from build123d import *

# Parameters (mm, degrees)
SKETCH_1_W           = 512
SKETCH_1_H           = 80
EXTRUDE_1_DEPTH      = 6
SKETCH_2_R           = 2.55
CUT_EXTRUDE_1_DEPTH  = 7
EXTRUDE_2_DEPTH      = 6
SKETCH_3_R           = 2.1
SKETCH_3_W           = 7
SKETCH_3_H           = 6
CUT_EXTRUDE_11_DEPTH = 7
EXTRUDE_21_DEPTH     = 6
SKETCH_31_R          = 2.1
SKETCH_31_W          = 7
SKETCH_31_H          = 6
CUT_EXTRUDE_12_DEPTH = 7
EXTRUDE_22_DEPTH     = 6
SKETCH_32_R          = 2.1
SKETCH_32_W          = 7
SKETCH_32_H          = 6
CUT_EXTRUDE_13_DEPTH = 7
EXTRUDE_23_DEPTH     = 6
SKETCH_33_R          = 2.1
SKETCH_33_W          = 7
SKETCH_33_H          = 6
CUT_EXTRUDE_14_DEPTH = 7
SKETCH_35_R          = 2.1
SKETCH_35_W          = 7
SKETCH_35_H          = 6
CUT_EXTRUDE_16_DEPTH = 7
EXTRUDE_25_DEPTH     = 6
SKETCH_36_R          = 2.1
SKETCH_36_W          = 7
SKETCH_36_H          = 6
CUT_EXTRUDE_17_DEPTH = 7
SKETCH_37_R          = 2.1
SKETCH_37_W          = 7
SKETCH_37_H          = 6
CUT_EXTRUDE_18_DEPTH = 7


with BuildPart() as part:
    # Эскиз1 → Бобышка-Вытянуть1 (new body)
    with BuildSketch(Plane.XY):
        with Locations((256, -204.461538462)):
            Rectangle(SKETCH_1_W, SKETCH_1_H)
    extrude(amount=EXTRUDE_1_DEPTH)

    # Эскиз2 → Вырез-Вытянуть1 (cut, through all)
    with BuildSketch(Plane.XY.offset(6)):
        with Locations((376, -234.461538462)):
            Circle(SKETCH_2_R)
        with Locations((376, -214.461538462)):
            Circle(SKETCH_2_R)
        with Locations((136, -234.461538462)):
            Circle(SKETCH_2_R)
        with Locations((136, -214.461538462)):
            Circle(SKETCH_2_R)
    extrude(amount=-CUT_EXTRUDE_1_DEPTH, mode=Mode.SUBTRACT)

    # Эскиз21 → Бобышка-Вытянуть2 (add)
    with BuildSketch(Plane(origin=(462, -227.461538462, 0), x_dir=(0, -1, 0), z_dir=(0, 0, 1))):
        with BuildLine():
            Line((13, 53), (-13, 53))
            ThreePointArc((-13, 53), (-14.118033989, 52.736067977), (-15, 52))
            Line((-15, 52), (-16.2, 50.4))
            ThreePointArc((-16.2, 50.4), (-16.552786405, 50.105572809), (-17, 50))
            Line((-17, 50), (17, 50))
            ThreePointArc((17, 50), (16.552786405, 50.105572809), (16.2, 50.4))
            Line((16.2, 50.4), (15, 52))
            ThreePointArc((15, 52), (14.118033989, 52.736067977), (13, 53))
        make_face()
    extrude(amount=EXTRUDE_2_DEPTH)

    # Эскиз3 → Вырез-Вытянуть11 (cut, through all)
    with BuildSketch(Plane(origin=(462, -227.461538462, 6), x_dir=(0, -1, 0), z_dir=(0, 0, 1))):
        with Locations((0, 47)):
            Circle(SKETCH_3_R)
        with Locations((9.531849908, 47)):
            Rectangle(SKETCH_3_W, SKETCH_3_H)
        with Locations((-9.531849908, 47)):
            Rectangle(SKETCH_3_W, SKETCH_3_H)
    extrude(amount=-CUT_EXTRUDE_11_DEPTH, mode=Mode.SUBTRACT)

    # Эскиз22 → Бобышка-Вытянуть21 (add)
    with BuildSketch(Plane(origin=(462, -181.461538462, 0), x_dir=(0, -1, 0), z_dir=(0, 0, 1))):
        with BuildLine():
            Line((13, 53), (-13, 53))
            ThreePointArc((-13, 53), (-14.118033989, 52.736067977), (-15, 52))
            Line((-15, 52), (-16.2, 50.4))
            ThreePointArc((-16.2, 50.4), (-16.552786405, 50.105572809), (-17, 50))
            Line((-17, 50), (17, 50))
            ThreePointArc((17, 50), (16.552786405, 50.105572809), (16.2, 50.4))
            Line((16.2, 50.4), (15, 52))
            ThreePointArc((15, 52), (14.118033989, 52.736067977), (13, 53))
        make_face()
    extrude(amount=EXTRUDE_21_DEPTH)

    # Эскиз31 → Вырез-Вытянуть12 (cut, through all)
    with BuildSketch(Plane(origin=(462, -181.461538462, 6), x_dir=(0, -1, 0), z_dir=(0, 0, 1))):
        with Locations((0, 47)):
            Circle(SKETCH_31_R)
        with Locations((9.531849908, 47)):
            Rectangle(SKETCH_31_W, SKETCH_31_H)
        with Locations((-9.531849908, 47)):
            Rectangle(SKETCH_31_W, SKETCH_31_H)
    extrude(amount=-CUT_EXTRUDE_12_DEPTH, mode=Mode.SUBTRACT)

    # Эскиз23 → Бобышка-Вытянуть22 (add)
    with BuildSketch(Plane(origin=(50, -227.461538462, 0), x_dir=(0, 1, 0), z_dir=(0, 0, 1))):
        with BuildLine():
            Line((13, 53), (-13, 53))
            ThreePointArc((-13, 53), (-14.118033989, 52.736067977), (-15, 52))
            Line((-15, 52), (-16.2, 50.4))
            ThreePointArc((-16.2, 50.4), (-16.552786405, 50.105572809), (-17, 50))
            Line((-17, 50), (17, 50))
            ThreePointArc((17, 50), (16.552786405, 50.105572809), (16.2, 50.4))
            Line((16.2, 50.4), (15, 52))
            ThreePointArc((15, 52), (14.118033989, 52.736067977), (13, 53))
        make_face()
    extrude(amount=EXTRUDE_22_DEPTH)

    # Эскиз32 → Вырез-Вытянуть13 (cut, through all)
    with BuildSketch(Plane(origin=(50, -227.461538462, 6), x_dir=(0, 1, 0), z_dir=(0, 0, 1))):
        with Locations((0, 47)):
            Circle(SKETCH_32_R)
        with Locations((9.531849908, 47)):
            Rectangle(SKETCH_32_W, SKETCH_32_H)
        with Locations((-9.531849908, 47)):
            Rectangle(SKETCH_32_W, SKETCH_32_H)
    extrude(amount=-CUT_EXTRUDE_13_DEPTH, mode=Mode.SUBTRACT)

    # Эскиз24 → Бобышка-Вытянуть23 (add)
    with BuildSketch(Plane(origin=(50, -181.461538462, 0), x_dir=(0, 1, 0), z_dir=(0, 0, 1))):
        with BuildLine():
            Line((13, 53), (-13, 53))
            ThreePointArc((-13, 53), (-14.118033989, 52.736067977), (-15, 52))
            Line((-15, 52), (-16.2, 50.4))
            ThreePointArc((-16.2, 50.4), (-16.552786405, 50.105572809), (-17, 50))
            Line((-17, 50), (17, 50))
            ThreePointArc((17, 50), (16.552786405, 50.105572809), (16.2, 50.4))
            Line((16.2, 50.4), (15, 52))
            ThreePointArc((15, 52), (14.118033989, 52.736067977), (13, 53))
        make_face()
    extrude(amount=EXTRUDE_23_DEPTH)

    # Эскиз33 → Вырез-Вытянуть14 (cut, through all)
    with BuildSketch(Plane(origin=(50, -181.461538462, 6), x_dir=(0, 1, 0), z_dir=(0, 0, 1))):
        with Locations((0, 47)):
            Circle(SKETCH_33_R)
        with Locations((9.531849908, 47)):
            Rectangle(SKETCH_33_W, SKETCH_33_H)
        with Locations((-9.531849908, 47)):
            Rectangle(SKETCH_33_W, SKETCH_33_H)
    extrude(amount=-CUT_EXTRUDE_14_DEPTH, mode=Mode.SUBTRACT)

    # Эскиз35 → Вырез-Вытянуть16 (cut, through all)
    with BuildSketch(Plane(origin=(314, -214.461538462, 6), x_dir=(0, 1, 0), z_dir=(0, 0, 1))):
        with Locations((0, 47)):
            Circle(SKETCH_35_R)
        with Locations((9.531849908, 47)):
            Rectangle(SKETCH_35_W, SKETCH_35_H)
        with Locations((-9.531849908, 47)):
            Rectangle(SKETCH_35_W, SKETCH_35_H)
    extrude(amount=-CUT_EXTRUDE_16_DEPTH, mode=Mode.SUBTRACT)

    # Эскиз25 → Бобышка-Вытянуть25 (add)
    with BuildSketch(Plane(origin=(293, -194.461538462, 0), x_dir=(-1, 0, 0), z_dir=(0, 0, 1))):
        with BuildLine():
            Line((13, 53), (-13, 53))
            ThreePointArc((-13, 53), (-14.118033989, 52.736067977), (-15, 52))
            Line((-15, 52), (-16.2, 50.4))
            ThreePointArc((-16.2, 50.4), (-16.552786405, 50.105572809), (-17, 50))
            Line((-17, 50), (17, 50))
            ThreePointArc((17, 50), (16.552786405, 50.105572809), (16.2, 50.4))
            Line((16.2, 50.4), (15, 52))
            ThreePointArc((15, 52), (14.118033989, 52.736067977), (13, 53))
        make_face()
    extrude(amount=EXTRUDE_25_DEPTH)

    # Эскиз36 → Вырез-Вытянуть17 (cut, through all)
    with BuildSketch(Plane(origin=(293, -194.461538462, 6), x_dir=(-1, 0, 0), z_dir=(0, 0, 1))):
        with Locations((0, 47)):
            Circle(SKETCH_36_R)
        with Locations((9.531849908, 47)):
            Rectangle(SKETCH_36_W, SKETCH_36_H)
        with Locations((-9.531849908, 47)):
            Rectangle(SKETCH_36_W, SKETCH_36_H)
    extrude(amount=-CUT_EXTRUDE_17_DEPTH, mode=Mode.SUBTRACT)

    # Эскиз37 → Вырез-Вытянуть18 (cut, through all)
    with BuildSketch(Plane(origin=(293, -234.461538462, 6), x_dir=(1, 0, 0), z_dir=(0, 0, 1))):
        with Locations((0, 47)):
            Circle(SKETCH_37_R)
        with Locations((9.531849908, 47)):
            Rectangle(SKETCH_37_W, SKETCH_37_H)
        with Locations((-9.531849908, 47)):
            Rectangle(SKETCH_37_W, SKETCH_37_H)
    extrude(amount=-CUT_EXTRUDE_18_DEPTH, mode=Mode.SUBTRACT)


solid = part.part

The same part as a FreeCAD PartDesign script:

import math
import FreeCAD as App
import Part
import Sketcher

V = App.Vector


def add_polygon(sketch, points):
    """Adds a closed chain of lines whose ends are joined by coincident constraints."""
    first, n = sketch.GeometryCount, len(points)
    for a, b in zip(points, points[1:] + points[:1]):
        sketch.addGeometry(Part.LineSegment(App.Vector(*a, 0), App.Vector(*b, 0)), False)
    for i in range(n):
        sketch.addConstraint(Sketcher.Constraint("Coincident", first + i, 2, first + (i + 1) % n, 1))

doc = App.newDocument("Part")
body = doc.addObject("PartDesign::Body", "Body")

# Sketch on XY plane
sketch1 = body.newObject("Sketcher::SketchObject", "Sketch")
sketch1.AttachmentSupport = (doc.getObject("XY_Plane"), [""])
sketch1.MapMode = "FlatFace"
add_polygon(sketch1, [(0, -164), (0, -244), (512, -244), (512, -164)])  # lines 0-3
sketch1.addConstraint(Sketcher.Constraint("Vertical", 0))
sketch1.addConstraint(Sketcher.Constraint("Horizontal", 1))
sketch1.addConstraint(Sketcher.Constraint("Vertical", 2))
sketch1.addConstraint(Sketcher.Constraint("Horizontal", 3))
sketch1.addConstraint(Sketcher.Constraint("PointOnObject", 0, 2, -2))
sketch1.addConstraint(Sketcher.Constraint("DistanceX", 1, 1, 1, 2, 512.0))
sketch1.addConstraint(Sketcher.Constraint("DistanceY", 0, 2, 0, 1, 80.0))
sketch1.addConstraint(Sketcher.Constraint("DistanceY", 0, 2, -1, 1, 244.461538))
pad1 = body.newObject("PartDesign::Pad", "Pad")
pad1.Profile = sketch1
pad1.Length = 6

# Sketch on XY plane
sketch2 = body.newObject("Sketcher::SketchObject", "Sketch001")
sketch2.AttachmentSupport = (doc.getObject("XY_Plane"), [""])
sketch2.MapMode = "FlatFace"
sketch2.AttachmentOffset = App.Placement(V(0, 0, 6), App.Rotation())
sketch2.addGeometry(Part.Circle(V(376, -234.5, 0), V(0, 0, 1), 2.5), False)
sketch2.addGeometry(Part.Circle(V(376, -214.5, 0), V(0, 0, 1), 2.5), False)
sketch2.addGeometry(Part.Circle(V(136, -234.5, 0), V(0, 0, 1), 2.5), False)
sketch2.addGeometry(Part.Circle(V(136, -214.5, 0), V(0, 0, 1), 2.5), False)
sketch2.addConstraint(Sketcher.Constraint("Equal", 0, 1))
sketch2.addConstraint(Sketcher.Constraint("Equal", 1, 2))
sketch2.addConstraint(Sketcher.Constraint("Equal", 2, 3))
sketch2.addConstraint(Sketcher.Constraint("Horizontal", 0, 3, 2, 3))
sketch2.addConstraint(Sketcher.Constraint("Horizontal", 1, 3, 3, 3))
sketch2.addConstraint(Sketcher.Constraint("Vertical", 0, 3, 1, 3))
sketch2.addConstraint(Sketcher.Constraint("Vertical", 2, 3, 3, 3))
sketch2.addConstraint(Sketcher.Constraint("Diameter", 0, 5.1))
sketch2.addConstraint(Sketcher.Constraint("DistanceX", -1, 1, 0, 3, 376.0))
sketch2.addConstraint(Sketcher.Constraint("DistanceX", -1, 1, 2, 3, 136.0))
sketch2.addConstraint(Sketcher.Constraint("DistanceY", 0, 3, 1, 3, 20.0))
sketch2.addConstraint(Sketcher.Constraint("DistanceY", 0, 3, -1, 1, 234.461538))
pocket1 = body.newObject("PartDesign::Pocket", "Pocket")
pocket1.Profile = sketch2
pocket1.Type = "ThroughAll"

# Sketch on XY plane
sketch3 = body.newObject("Sketcher::SketchObject", "Sketch002")
sketch3.AttachmentSupport = (doc.getObject("XY_Plane"), [""])
sketch3.MapMode = "FlatFace"
sketch3.addGeometry(Part.LineSegment(V(515, -240.5, 0), V(515, -214.5, 0)), False)
sketch3.addGeometry(Part.ArcOfCircle(Part.Circle(V(512.5, -214.5, 0), V(0, 0, 1), 2.5), math.radians(0), math.radians(53)), False)
sketch3.addGeometry(Part.LineSegment(V(514, -212.5, 0), V(512.4, -211.3, 0)), False)
sketch3.addGeometry(Part.ArcOfCircle(Part.Circle(V(513, -210.5, 0), V(0, 0, 1), 1), math.radians(-180), math.radians(-127)), False)
sketch3.addGeometry(Part.LineSegment(V(512, -210.5, 0), V(512, -244.5, 0)), False)
sketch3.addGeometry(Part.ArcOfCircle(Part.Circle(V(513, -244.5, 0), V(0, 0, 1), 1), math.radians(127), math.radians(180)), False)
sketch3.addGeometry(Part.LineSegment(V(512.4, -243.7, 0), V(514, -242.5, 0)), False)
sketch3.addGeometry(Part.ArcOfCircle(Part.Circle(V(512.5, -240.5, 0), V(0, 0, 1), 2.5), math.radians(-53), math.radians(0)), False)
sketch3.addConstraint(Sketcher.Constraint("Tangent", 0, 2, 1, 1))
sketch3.addConstraint(Sketcher.Constraint("Tangent", 1, 2, 2, 1))
sketch3.addConstraint(Sketcher.Constraint("Tangent", 2, 2, 3, 2))
sketch3.addConstraint(Sketcher.Constraint("Tangent", 3, 1, 4, 1))
sketch3.addConstraint(Sketcher.Constraint("Tangent", 4, 2, 5, 2))
sketch3.addConstraint(Sketcher.Constraint("Tangent", 5, 1, 6, 1))
sketch3.addConstraint(Sketcher.Constraint("Tangent", 6, 2, 7, 1))
sketch3.addConstraint(Sketcher.Constraint("Tangent", 7, 2, 0, 1))
sketch3.addConstraint(Sketcher.Constraint("Vertical", 0))
sketch3.addConstraint(Sketcher.Constraint("Vertical", 4))
sketch3.addConstraint(Sketcher.Constraint("Equal", 3, 5))
sketch3.addConstraint(Sketcher.Constraint("Equal", 1, 7))
sketch3.addConstraint(Sketcher.Constraint("Vertical", 2, 2, 5, 1))
sketch3.addConstraint(Sketcher.Constraint("Radius", 3, 1.0))
sketch3.addConstraint(Sketcher.Constraint("Radius", 1, 2.5))
sketch3.addConstraint(Sketcher.Constraint("DistanceY", 0, 1, 0, 2, 26.0))
sketch3.addConstraint(Sketcher.Constraint("DistanceY", 4, 2, 4, 1, 34.0))
sketch3.addConstraint(Sketcher.Constraint("Distance", 2, 2.0))
sketch3.addConstraint(Sketcher.Constraint("DistanceX", -1, 1, 3, 3, 513.0))
sketch3.addConstraint(Sketcher.Constraint("DistanceY", 1, 3, -1, 1, 214.461538))
pad2 = body.newObject("PartDesign::Pad", "Pad001")
pad2.Profile = sketch3
pad2.Length = 6

# Sketch on XY plane
sketch4 = body.newObject("Sketcher::SketchObject", "Sketch003")
sketch4.AttachmentSupport = (doc.getObject("XY_Plane"), [""])
sketch4.MapMode = "FlatFace"
sketch4.AttachmentOffset = App.Placement(V(0, 0, 6), App.Rotation())
sketch4.addGeometry(Part.Circle(V(509, -227.5, 0), V(0, 0, 1), 2.1), False)  # 0
add_polygon(sketch4, [(512, -233.5), (506, -233.5), (506, -240.5), (512, -240.5)])  # lines 1-4
add_polygon(sketch4, [(512, -214.4), (506, -214.4), (506, -221.4), (512, -221.4)])  # lines 5-8
sketch4.addConstraint(Sketcher.Constraint("Horizontal", 1))
sketch4.addConstraint(Sketcher.Constraint("Vertical", 2))
sketch4.addConstraint(Sketcher.Constraint("Horizontal", 3))
sketch4.addConstraint(Sketcher.Constraint("Vertical", 4))
sketch4.addConstraint(Sketcher.Constraint("Horizontal", 5))
sketch4.addConstraint(Sketcher.Constraint("Vertical", 6))
sketch4.addConstraint(Sketcher.Constraint("Horizontal", 7))
sketch4.addConstraint(Sketcher.Constraint("Vertical", 8))
sketch4.addConstraint(Sketcher.Constraint("Vertical", 2, 2, 5, 2))
sketch4.addConstraint(Sketcher.Constraint("Vertical", 4, 2, 7, 2))
sketch4.addConstraint(Sketcher.Constraint("Equal", 4, 6))
sketch4.addConstraint(Sketcher.Constraint("Diameter", 0, 4.2))
sketch4.addConstraint(Sketcher.Constraint("DistanceX", 1, 2, 1, 1, 6.0))
sketch4.addConstraint(Sketcher.Constraint("DistanceY", 2, 2, 2, 1, 7.0))
sketch4.addConstraint(Sketcher.Constraint("DistanceX", -1, 1, 0, 3, 509.0))
sketch4.addConstraint(Sketcher.Constraint("DistanceX", -1, 1, 1, 2, 506.0))
sketch4.addConstraint(Sketcher.Constraint("DistanceY", 1, 2, 5, 2, 19.0637))
sketch4.addConstraint(Sketcher.Constraint("DistanceY", 0, 3, -1, 1, 227.461538))
sketch4.addConstraint(Sketcher.Constraint("DistanceY", 1, 2, -1, 1, 233.493388))
pocket2 = body.newObject("PartDesign::Pocket", "Pocket001")
pocket2.Profile = sketch4
pocket2.Type = "ThroughAll"

# Sketch on XY plane
sketch5 = body.newObject("Sketcher::SketchObject", "Sketch004")
sketch5.AttachmentSupport = (doc.getObject("XY_Plane"), [""])
sketch5.MapMode = "FlatFace"
sketch5.addGeometry(Part.LineSegment(V(515, -194.5, 0), V(515, -168.5, 0)), False)
sketch5.addGeometry(Part.ArcOfCircle(Part.Circle(V(512.5, -168.5, 0), V(0, 0, 1), 2.5), math.radians(0), math.radians(53)), False)
sketch5.addGeometry(Part.LineSegment(V(514, -166.5, 0), V(512.4, -165.3, 0)), False)
sketch5.addGeometry(Part.ArcOfCircle(Part.Circle(V(513, -164.5, 0), V(0, 0, 1), 1), math.radians(-180), math.radians(-127)), False)
sketch5.addGeometry(Part.LineSegment(V(512, -164.5, 0), V(512, -198.5, 0)), False)
sketch5.addGeometry(Part.ArcOfCircle(Part.Circle(V(513, -198.5, 0), V(0, 0, 1), 1), math.radians(127), math.radians(180)), False)
sketch5.addGeometry(Part.LineSegment(V(512.4, -197.7, 0), V(514, -196.5, 0)), False)
sketch5.addGeometry(Part.ArcOfCircle(Part.Circle(V(512.5, -194.5, 0), V(0, 0, 1), 2.5), math.radians(-53), math.radians(0)), False)
sketch5.addConstraint(Sketcher.Constraint("Tangent", 0, 2, 1, 1))
sketch5.addConstraint(Sketcher.Constraint("Tangent", 1, 2, 2, 1))
sketch5.addConstraint(Sketcher.Constraint("Tangent", 2, 2, 3, 2))
sketch5.addConstraint(Sketcher.Constraint("Tangent", 3, 1, 4, 1))
sketch5.addConstraint(Sketcher.Constraint("Tangent", 4, 2, 5, 2))
sketch5.addConstraint(Sketcher.Constraint("Tangent", 5, 1, 6, 1))
sketch5.addConstraint(Sketcher.Constraint("Tangent", 6, 2, 7, 1))
sketch5.addConstraint(Sketcher.Constraint("Tangent", 7, 2, 0, 1))
sketch5.addConstraint(Sketcher.Constraint("Vertical", 0))
sketch5.addConstraint(Sketcher.Constraint("Vertical", 4))
sketch5.addConstraint(Sketcher.Constraint("Equal", 3, 5))
sketch5.addConstraint(Sketcher.Constraint("Equal", 1, 7))
sketch5.addConstraint(Sketcher.Constraint("Vertical", 2, 2, 5, 1))
sketch5.addConstraint(Sketcher.Constraint("Radius", 3, 1.0))
sketch5.addConstraint(Sketcher.Constraint("Radius", 1, 2.5))
sketch5.addConstraint(Sketcher.Constraint("DistanceY", 0, 1, 0, 2, 26.0))
sketch5.addConstraint(Sketcher.Constraint("DistanceY", 4, 2, 4, 1, 34.0))
sketch5.addConstraint(Sketcher.Constraint("Distance", 2, 2.0))
sketch5.addConstraint(Sketcher.Constraint("DistanceX", -1, 1, 3, 3, 513.0))
sketch5.addConstraint(Sketcher.Constraint("DistanceY", 1, 3, -1, 1, 168.461538))
pad3 = body.newObject("PartDesign::Pad", "Pad002")
pad3.Profile = sketch5
pad3.Length = 6

# Sketch on XY plane
sketch6 = body.newObject("Sketcher::SketchObject", "Sketch005")
sketch6.AttachmentSupport = (doc.getObject("XY_Plane"), [""])
sketch6.MapMode = "FlatFace"
sketch6.AttachmentOffset = App.Placement(V(0, 0, 6), App.Rotation())
sketch6.addGeometry(Part.Circle(V(509, -181.5, 0), V(0, 0, 1), 2.1), False)  # 0
add_polygon(sketch6, [(512, -187.5), (506, -187.5), (506, -194.5), (512, -194.5)])  # lines 1-4
add_polygon(sketch6, [(512, -168.4), (506, -168.4), (506, -175.4), (512, -175.4)])  # lines 5-8
sketch6.addConstraint(Sketcher.Constraint("Horizontal", 1))
sketch6.addConstraint(Sketcher.Constraint("Vertical", 2))
sketch6.addConstraint(Sketcher.Constraint("Horizontal", 3))
sketch6.addConstraint(Sketcher.Constraint("Vertical", 4))
sketch6.addConstraint(Sketcher.Constraint("Horizontal", 5))
sketch6.addConstraint(Sketcher.Constraint("Vertical", 6))
sketch6.addConstraint(Sketcher.Constraint("Horizontal", 7))
sketch6.addConstraint(Sketcher.Constraint("Vertical", 8))
sketch6.addConstraint(Sketcher.Constraint("Vertical", 2, 2, 5, 2))
sketch6.addConstraint(Sketcher.Constraint("Vertical", 4, 2, 7, 2))
sketch6.addConstraint(Sketcher.Constraint("Equal", 4, 6))
sketch6.addConstraint(Sketcher.Constraint("Diameter", 0, 4.2))
sketch6.addConstraint(Sketcher.Constraint("DistanceX", 1, 2, 1, 1, 6.0))
sketch6.addConstraint(Sketcher.Constraint("DistanceY", 2, 2, 2, 1, 7.0))
sketch6.addConstraint(Sketcher.Constraint("DistanceX", -1, 1, 0, 3, 509.0))
sketch6.addConstraint(Sketcher.Constraint("DistanceX", -1, 1, 1, 2, 506.0))
sketch6.addConstraint(Sketcher.Constraint("DistanceY", 1, 2, 5, 2, 19.0637))
sketch6.addConstraint(Sketcher.Constraint("DistanceY", 0, 3, -1, 1, 181.461538))
sketch6.addConstraint(Sketcher.Constraint("DistanceY", 1, 2, -1, 1, 187.493388))
pocket3 = body.newObject("PartDesign::Pocket", "Pocket002")
pocket3.Profile = sketch6
pocket3.Type = "ThroughAll"

# Sketch on XY plane
sketch7 = body.newObject("Sketcher::SketchObject", "Sketch006")
sketch7.AttachmentSupport = (doc.getObject("XY_Plane"), [""])
sketch7.MapMode = "FlatFace"
sketch7.addGeometry(Part.LineSegment(V(-3, -214.5, 0), V(-3, -240.5, 0)), False)
sketch7.addGeometry(Part.ArcOfCircle(Part.Circle(V(-0.5, -240.5, 0), V(0, 0, 1), 2.5), math.radians(-180), math.radians(-127)), False)
sketch7.addGeometry(Part.LineSegment(V(-2, -242.5, 0), V(-0.4, -243.7, 0)), False)
sketch7.addGeometry(Part.ArcOfCircle(Part.Circle(V(-1, -244.5, 0), V(0, 0, 1), 1), math.radians(0), math.radians(53)), False)
sketch7.addGeometry(Part.LineSegment(V(0, -244.5, 0), V(0, -210.5, 0)), False)
sketch7.addGeometry(Part.ArcOfCircle(Part.Circle(V(-1, -210.5, 0), V(0, 0, 1), 1), math.radians(-53), math.radians(0)), False)
sketch7.addGeometry(Part.LineSegment(V(-0.4, -211.3, 0), V(-2, -212.5, 0)), False)
sketch7.addGeometry(Part.ArcOfCircle(Part.Circle(V(-0.5, -214.5, 0), V(0, 0, 1), 2.5), math.radians(127), math.radians(180)), False)
sketch7.addConstraint(Sketcher.Constraint("Tangent", 0, 2, 1, 1))
sketch7.addConstraint(Sketcher.Constraint("Tangent", 1, 2, 2, 1))
sketch7.addConstraint(Sketcher.Constraint("Tangent", 2, 2, 3, 2))
sketch7.addConstraint(Sketcher.Constraint("Tangent", 3, 1, 4, 1))
sketch7.addConstraint(Sketcher.Constraint("Tangent", 4, 2, 5, 2))
sketch7.addConstraint(Sketcher.Constraint("Tangent", 5, 1, 6, 1))
sketch7.addConstraint(Sketcher.Constraint("Tangent", 6, 2, 7, 1))
sketch7.addConstraint(Sketcher.Constraint("Tangent", 7, 2, 0, 1))
sketch7.addConstraint(Sketcher.Constraint("Vertical", 0))
sketch7.addConstraint(Sketcher.Constraint("Vertical", 4))
sketch7.addConstraint(Sketcher.Constraint("Equal", 3, 5))
sketch7.addConstraint(Sketcher.Constraint("Equal", 1, 7))
sketch7.addConstraint(Sketcher.Constraint("PointOnObject", 3, 1, -2))
sketch7.addConstraint(Sketcher.Constraint("Vertical", 2, 2, 5, 1))
sketch7.addConstraint(Sketcher.Constraint("Radius", 3, 1.0))
sketch7.addConstraint(Sketcher.Constraint("Radius", 1, 2.5))
sketch7.addConstraint(Sketcher.Constraint("DistanceY", 0, 2, 0, 1, 26.0))
sketch7.addConstraint(Sketcher.Constraint("DistanceY", 4, 1, 4, 2, 34.0))
sketch7.addConstraint(Sketcher.Constraint("Distance", 2, 2.0))
sketch7.addConstraint(Sketcher.Constraint("DistanceY", 1, 3, -1, 1, 240.461538))
pad4 = body.newObject("PartDesign::Pad", "Pad003")
pad4.Profile = sketch7
pad4.Length = 6

# Sketch on XY plane
sketch8 = body.newObject("Sketcher::SketchObject", "Sketch007")
sketch8.AttachmentSupport = (doc.getObject("XY_Plane"), [""])
sketch8.MapMode = "FlatFace"
sketch8.AttachmentOffset = App.Placement(V(0, 0, 6), App.Rotation())
sketch8.addGeometry(Part.Circle(V(3, -227.5, 0), V(0, 0, 1), 2.1), False)  # 0
add_polygon(sketch8, [(0, -221.4), (6, -221.4), (6, -214.4), (0, -214.4)])  # lines 1-4
add_polygon(sketch8, [(0, -240.5), (6, -240.5), (6, -233.5), (0, -233.5)])  # lines 5-8
sketch8.addConstraint(Sketcher.Constraint("Horizontal", 1))
sketch8.addConstraint(Sketcher.Constraint("Vertical", 2))
sketch8.addConstraint(Sketcher.Constraint("Horizontal", 3))
sketch8.addConstraint(Sketcher.Constraint("Vertical", 4))
sketch8.addConstraint(Sketcher.Constraint("Horizontal", 5))
sketch8.addConstraint(Sketcher.Constraint("Vertical", 6))
sketch8.addConstraint(Sketcher.Constraint("Horizontal", 7))
sketch8.addConstraint(Sketcher.Constraint("Vertical", 8))
sketch8.addConstraint(Sketcher.Constraint("PointOnObject", 3, 2, -2))
sketch8.addConstraint(Sketcher.Constraint("PointOnObject", 7, 2, -2))
sketch8.addConstraint(Sketcher.Constraint("Vertical", 2, 2, 5, 2))
sketch8.addConstraint(Sketcher.Constraint("Equal", 4, 6))
sketch8.addConstraint(Sketcher.Constraint("Diameter", 0, 4.2))
sketch8.addConstraint(Sketcher.Constraint("DistanceX", 1, 1, 1, 2, 6.0))
sketch8.addConstraint(Sketcher.Constraint("DistanceY", 2, 1, 2, 2, 7.0))
sketch8.addConstraint(Sketcher.Constraint("DistanceX", -1, 1, 0, 3, 3.0))
sketch8.addConstraint(Sketcher.Constraint("DistanceY", 5, 2, 1, 2, 19.0637))
sketch8.addConstraint(Sketcher.Constraint("DistanceY", 0, 3, -1, 1, 227.461538))
sketch8.addConstraint(Sketcher.Constraint("DistanceY", 1, 2, -1, 1, 221.429689))
pocket4 = body.newObject("PartDesign::Pocket", "Pocket003")
pocket4.Profile = sketch8
pocket4.Type = "ThroughAll"

# Sketch on XY plane
sketch9 = body.newObject("Sketcher::SketchObject", "Sketch008")
sketch9.AttachmentSupport = (doc.getObject("XY_Plane"), [""])
sketch9.MapMode = "FlatFace"
sketch9.addGeometry(Part.LineSegment(V(-3, -168.5, 0), V(-3, -194.5, 0)), False)
sketch9.addGeometry(Part.ArcOfCircle(Part.Circle(V(-0.5, -194.5, 0), V(0, 0, 1), 2.5), math.radians(-180), math.radians(-127)), False)
sketch9.addGeometry(Part.LineSegment(V(-2, -196.5, 0), V(-0.4, -197.7, 0)), False)
sketch9.addGeometry(Part.ArcOfCircle(Part.Circle(V(-1, -198.5, 0), V(0, 0, 1), 1), math.radians(0), math.radians(53)), False)
sketch9.addGeometry(Part.LineSegment(V(0, -198.5, 0), V(0, -164.5, 0)), False)
sketch9.addGeometry(Part.ArcOfCircle(Part.Circle(V(-1, -164.5, 0), V(0, 0, 1), 1), math.radians(-53), math.radians(0)), False)
sketch9.addGeometry(Part.LineSegment(V(-0.4, -165.3, 0), V(-2, -166.5, 0)), False)
sketch9.addGeometry(Part.ArcOfCircle(Part.Circle(V(-0.5, -168.5, 0), V(0, 0, 1), 2.5), math.radians(127), math.radians(180)), False)
sketch9.addConstraint(Sketcher.Constraint("Tangent", 0, 2, 1, 1))
sketch9.addConstraint(Sketcher.Constraint("Tangent", 1, 2, 2, 1))
sketch9.addConstraint(Sketcher.Constraint("Tangent", 2, 2, 3, 2))
sketch9.addConstraint(Sketcher.Constraint("Tangent", 3, 1, 4, 1))
sketch9.addConstraint(Sketcher.Constraint("Tangent", 4, 2, 5, 2))
sketch9.addConstraint(Sketcher.Constraint("Tangent", 5, 1, 6, 1))
sketch9.addConstraint(Sketcher.Constraint("Tangent", 6, 2, 7, 1))
sketch9.addConstraint(Sketcher.Constraint("Tangent", 7, 2, 0, 1))
sketch9.addConstraint(Sketcher.Constraint("Vertical", 0))
sketch9.addConstraint(Sketcher.Constraint("Vertical", 4))
sketch9.addConstraint(Sketcher.Constraint("Equal", 3, 5))
sketch9.addConstraint(Sketcher.Constraint("Equal", 1, 7))
sketch9.addConstraint(Sketcher.Constraint("PointOnObject", 3, 1, -2))
sketch9.addConstraint(Sketcher.Constraint("Vertical", 2, 2, 5, 1))
sketch9.addConstraint(Sketcher.Constraint("Radius", 3, 1.0))
sketch9.addConstraint(Sketcher.Constraint("Radius", 1, 2.5))
sketch9.addConstraint(Sketcher.Constraint("DistanceY", 0, 2, 0, 1, 26.0))
sketch9.addConstraint(Sketcher.Constraint("DistanceY", 4, 1, 4, 2, 34.0))
sketch9.addConstraint(Sketcher.Constraint("Distance", 2, 2.0))
sketch9.addConstraint(Sketcher.Constraint("DistanceY", 1, 3, -1, 1, 194.461538))
pad5 = body.newObject("PartDesign::Pad", "Pad004")
pad5.Profile = sketch9
pad5.Length = 6

# Sketch on XY plane
sketch10 = body.newObject("Sketcher::SketchObject", "Sketch009")
sketch10.AttachmentSupport = (doc.getObject("XY_Plane"), [""])
sketch10.MapMode = "FlatFace"
sketch10.AttachmentOffset = App.Placement(V(0, 0, 6), App.Rotation())
sketch10.addGeometry(Part.Circle(V(3, -181.5, 0), V(0, 0, 1), 2.1), False)  # 0
add_polygon(sketch10, [(0, -175.4), (6, -175.4), (6, -168.4), (0, -168.4)])  # lines 1-4
add_polygon(sketch10, [(0, -194.5), (6, -194.5), (6, -187.5), (0, -187.5)])  # lines 5-8
sketch10.addConstraint(Sketcher.Constraint("Horizontal", 1))
sketch10.addConstraint(Sketcher.Constraint("Vertical", 2))
sketch10.addConstraint(Sketcher.Constraint("Horizontal", 3))
sketch10.addConstraint(Sketcher.Constraint("Vertical", 4))
sketch10.addConstraint(Sketcher.Constraint("Horizontal", 5))
sketch10.addConstraint(Sketcher.Constraint("Vertical", 6))
sketch10.addConstraint(Sketcher.Constraint("Horizontal", 7))
sketch10.addConstraint(Sketcher.Constraint("Vertical", 8))
sketch10.addConstraint(Sketcher.Constraint("PointOnObject", 3, 2, -2))
sketch10.addConstraint(Sketcher.Constraint("PointOnObject", 7, 2, -2))
sketch10.addConstraint(Sketcher.Constraint("Vertical", 2, 2, 5, 2))
sketch10.addConstraint(Sketcher.Constraint("Equal", 4, 6))
sketch10.addConstraint(Sketcher.Constraint("Diameter", 0, 4.2))
sketch10.addConstraint(Sketcher.Constraint("DistanceX", 1, 1, 1, 2, 6.0))
sketch10.addConstraint(Sketcher.Constraint("DistanceY", 2, 1, 2, 2, 7.0))
sketch10.addConstraint(Sketcher.Constraint("DistanceX", -1, 1, 0, 3, 3.0))
sketch10.addConstraint(Sketcher.Constraint("DistanceY", 5, 2, 1, 2, 19.0637))
sketch10.addConstraint(Sketcher.Constraint("DistanceY", 0, 3, -1, 1, 181.461538))
sketch10.addConstraint(Sketcher.Constraint("DistanceY", 1, 2, -1, 1, 175.429689))
pocket5 = body.newObject("PartDesign::Pocket", "Pocket004")
pocket5.Profile = sketch10
pocket5.Type = "ThroughAll"

# Sketch on XY plane
sketch11 = body.newObject("Sketcher::SketchObject", "Sketch010")
sketch11.AttachmentSupport = (doc.getObject("XY_Plane"), [""])
sketch11.MapMode = "FlatFace"
sketch11.AttachmentOffset = App.Placement(V(0, 0, 6), App.Rotation())
sketch11.addGeometry(Part.Circle(V(267, -214.5, 0), V(0, 0, 1), 2.1), False)  # 0
add_polygon(sketch11, [(264, -208.4), (270, -208.4), (270, -201.4), (264, -201.4)])  # lines 1-4
add_polygon(sketch11, [(264, -227.5), (270, -227.5), (270, -220.5), (264, -220.5)])  # lines 5-8
sketch11.addConstraint(Sketcher.Constraint("Horizontal", 1))
sketch11.addConstraint(Sketcher.Constraint("Vertical", 2))
sketch11.addConstraint(Sketcher.Constraint("Horizontal", 3))
sketch11.addConstraint(Sketcher.Constraint("Vertical", 4))
sketch11.addConstraint(Sketcher.Constraint("Horizontal", 5))
sketch11.addConstraint(Sketcher.Constraint("Vertical", 6))
sketch11.addConstraint(Sketcher.Constraint("Horizontal", 7))
sketch11.addConstraint(Sketcher.Constraint("Vertical", 8))
sketch11.addConstraint(Sketcher.Constraint("Vertical", 2, 2, 5, 2))
sketch11.addConstraint(Sketcher.Constraint("Vertical", 4, 2, 7, 2))
sketch11.addConstraint(Sketcher.Constraint("Equal", 4, 6))
sketch11.addConstraint(Sketcher.Constraint("Diameter", 0, 4.2))
sketch11.addConstraint(Sketcher.Constraint("DistanceX", 1, 1, 1, 2, 6.0))
sketch11.addConstraint(Sketcher.Constraint("DistanceY", 2, 1, 2, 2, 7.0))
sketch11.addConstraint(Sketcher.Constraint("DistanceX", -1, 1, 0, 3, 267.0))
sketch11.addConstraint(Sketcher.Constraint("DistanceX", -1, 1, 1, 2, 270.0))
sketch11.addConstraint(Sketcher.Constraint("DistanceY", 5, 2, 1, 2, 19.0637))
sketch11.addConstraint(Sketcher.Constraint("DistanceY", 0, 3, -1, 1, 214.461538))
sketch11.addConstraint(Sketcher.Constraint("DistanceY", 1, 2, -1, 1, 208.429689))
pocket6 = body.newObject("PartDesign::Pocket", "Pocket005")
pocket6.Profile = sketch11
pocket6.Type = "ThroughAll"

# Sketch on XY plane
sketch12 = body.newObject("Sketcher::SketchObject", "Sketch011")
sketch12.AttachmentSupport = (doc.getObject("XY_Plane"), [""])
sketch12.MapMode = "FlatFace"
sketch12.addGeometry(Part.LineSegment(V(280, -247.5, 0), V(306, -247.5, 0)), False)
sketch12.addGeometry(Part.ArcOfCircle(Part.Circle(V(306, -245, 0), V(0, 0, 1), 2.5), math.radians(-90), math.radians(-37)), False)
sketch12.addGeometry(Part.LineSegment(V(308, -246.5, 0), V(309.2, -244.9, 0)), False)
sketch12.addGeometry(Part.ArcOfCircle(Part.Circle(V(310, -245.5, 0), V(0, 0, 1), 1), math.radians(90), math.radians(143)), False)
sketch12.addGeometry(Part.LineSegment(V(310, -244.5, 0), V(276, -244.5, 0)), False)
sketch12.addGeometry(Part.ArcOfCircle(Part.Circle(V(276, -245.5, 0), V(0, 0, 1), 1), math.radians(37), math.radians(90)), False)
sketch12.addGeometry(Part.LineSegment(V(276.8, -244.9, 0), V(278, -246.5, 0)), False)
sketch12.addGeometry(Part.ArcOfCircle(Part.Circle(V(280, -245, 0), V(0, 0, 1), 2.5), math.radians(-143), math.radians(-90)), False)
sketch12.addConstraint(Sketcher.Constraint("Tangent", 0, 2, 1, 1))
sketch12.addConstraint(Sketcher.Constraint("Tangent", 1, 2, 2, 1))
sketch12.addConstraint(Sketcher.Constraint("Tangent", 2, 2, 3, 2))
sketch12.addConstraint(Sketcher.Constraint("Tangent", 3, 1, 4, 1))
sketch12.addConstraint(Sketcher.Constraint("Tangent", 4, 2, 5, 2))
sketch12.addConstraint(Sketcher.Constraint("Tangent", 5, 1, 6, 1))
sketch12.addConstraint(Sketcher.Constraint("Tangent", 6, 2, 7, 1))
sketch12.addConstraint(Sketcher.Constraint("Tangent", 7, 2, 0, 1))
sketch12.addConstraint(Sketcher.Constraint("Horizontal", 0))
sketch12.addConstraint(Sketcher.Constraint("Horizontal", 4))
sketch12.addConstraint(Sketcher.Constraint("Equal", 3, 5))
sketch12.addConstraint(Sketcher.Constraint("Equal", 1, 7))
sketch12.addConstraint(Sketcher.Constraint("Horizontal", 2, 2, 5, 1))
sketch12.addConstraint(Sketcher.Constraint("Radius", 3, 1.0))
sketch12.addConstraint(Sketcher.Constraint("Radius", 1, 2.5))
sketch12.addConstraint(Sketcher.Constraint("DistanceX", 0, 1, 0, 2, 26.0))
sketch12.addConstraint(Sketcher.Constraint("DistanceX", 4, 2, 4, 1, 34.0))
sketch12.addConstraint(Sketcher.Constraint("Distance", 2, 2.0))
sketch12.addConstraint(Sketcher.Constraint("DistanceX", -1, 1, 1, 3, 306.0))
sketch12.addConstraint(Sketcher.Constraint("DistanceY", 1, 3, -1, 1, 244.961538))
pad6 = body.newObject("PartDesign::Pad", "Pad005")
pad6.Profile = sketch12
pad6.Length = 6

# Sketch on XY plane
sketch13 = body.newObject("Sketcher::SketchObject", "Sketch012")
sketch13.AttachmentSupport = (doc.getObject("XY_Plane"), [""])
sketch13.MapMode = "FlatFace"
sketch13.AttachmentOffset = App.Placement(V(0, 0, 6), App.Rotation())
sketch13.addGeometry(Part.Circle(V(293, -241.5, 0), V(0, 0, 1), 2.1), False)  # 0
add_polygon(sketch13, [(287, -244.5), (287, -238.5), (280, -238.5), (280, -244.5)])  # lines 1-4
add_polygon(sketch13, [(306, -244.5), (306, -238.5), (299, -238.5), (299, -244.5)])  # lines 5-8
sketch13.addConstraint(Sketcher.Constraint("Vertical", 1))
sketch13.addConstraint(Sketcher.Constraint("Horizontal", 2))
sketch13.addConstraint(Sketcher.Constraint("Vertical", 3))
sketch13.addConstraint(Sketcher.Constraint("Horizontal", 4))
sketch13.addConstraint(Sketcher.Constraint("Vertical", 5))
sketch13.addConstraint(Sketcher.Constraint("Horizontal", 6))
sketch13.addConstraint(Sketcher.Constraint("Vertical", 7))
sketch13.addConstraint(Sketcher.Constraint("Horizontal", 8))
sketch13.addConstraint(Sketcher.Constraint("Horizontal", 2, 2, 5, 2))
sketch13.addConstraint(Sketcher.Constraint("Horizontal", 4, 2, 7, 2))
sketch13.addConstraint(Sketcher.Constraint("Equal", 4, 6))
sketch13.addConstraint(Sketcher.Constraint("Diameter", 0, 4.2))
sketch13.addConstraint(Sketcher.Constraint("DistanceX", 2, 2, 2, 1, 7.0))
sketch13.addConstraint(Sketcher.Constraint("DistanceY", 1, 1, 1, 2, 6.0))
sketch13.addConstraint(Sketcher.Constraint("DistanceX", -1, 1, 0, 3, 293.0))
sketch13.addConstraint(Sketcher.Constraint("DistanceY", 0, 3, 1, 2, 3.0))
sketch13.addConstraint(Sketcher.Constraint("DistanceX", 1, 2, 5, 2, 19.0637))
sketch13.addConstraint(Sketcher.Constraint("DistanceY", 0, 3, -1, 1, 241.461538))
sketch13.addConstraint(Sketcher.Constraint("DistanceX", -1, 1, 1, 2, 286.96815))
pocket7 = body.newObject("PartDesign::Pocket", "Pocket006")
pocket7.Profile = sketch13
pocket7.Type = "ThroughAll"

# Sketch on XY plane
sketch14 = body.newObject("Sketcher::SketchObject", "Sketch013")
sketch14.AttachmentSupport = (doc.getObject("XY_Plane"), [""])
sketch14.MapMode = "FlatFace"
sketch14.AttachmentOffset = App.Placement(V(0, 0, 6), App.Rotation())
sketch14.addGeometry(Part.Circle(V(293, -187.5, 0), V(0, 0, 1), 2.1), False)  # 0
add_polygon(sketch14, [(299, -184.5), (299, -190.5), (306, -190.5), (306, -184.5)])  # lines 1-4
add_polygon(sketch14, [(280, -184.5), (280, -190.5), (287, -190.5), (287, -184.5)])  # lines 5-8
sketch14.addConstraint(Sketcher.Constraint("Vertical", 1))
sketch14.addConstraint(Sketcher.Constraint("Horizontal", 2))
sketch14.addConstraint(Sketcher.Constraint("Vertical", 3))
sketch14.addConstraint(Sketcher.Constraint("Horizontal", 4))
sketch14.addConstraint(Sketcher.Constraint("Vertical", 5))
sketch14.addConstraint(Sketcher.Constraint("Horizontal", 6))
sketch14.addConstraint(Sketcher.Constraint("Vertical", 7))
sketch14.addConstraint(Sketcher.Constraint("Horizontal", 8))
sketch14.addConstraint(Sketcher.Constraint("Horizontal", 2, 2, 5, 2))
sketch14.addConstraint(Sketcher.Constraint("Horizontal", 4, 2, 7, 2))
sketch14.addConstraint(Sketcher.Constraint("Equal", 4, 6))
sketch14.addConstraint(Sketcher.Constraint("Diameter", 0, 4.2))
sketch14.addConstraint(Sketcher.Constraint("DistanceX", 2, 1, 2, 2, 7.0))
sketch14.addConstraint(Sketcher.Constraint("DistanceY", 1, 2, 1, 1, 6.0))
sketch14.addConstraint(Sketcher.Constraint("DistanceX", -1, 1, 0, 3, 293.0))
sketch14.addConstraint(Sketcher.Constraint("DistanceY", 1, 2, 0, 3, 3.0))
sketch14.addConstraint(Sketcher.Constraint("DistanceX", 5, 2, 1, 2, 19.0637))
sketch14.addConstraint(Sketcher.Constraint("DistanceY", 0, 3, -1, 1, 187.461538))
sketch14.addConstraint(Sketcher.Constraint("DistanceX", -1, 1, 1, 2, 299.03185))
pocket8 = body.newObject("PartDesign::Pocket", "Pocket007")
pocket8.Profile = sketch14
pocket8.Type = "ThroughAll"

doc.recompute()
